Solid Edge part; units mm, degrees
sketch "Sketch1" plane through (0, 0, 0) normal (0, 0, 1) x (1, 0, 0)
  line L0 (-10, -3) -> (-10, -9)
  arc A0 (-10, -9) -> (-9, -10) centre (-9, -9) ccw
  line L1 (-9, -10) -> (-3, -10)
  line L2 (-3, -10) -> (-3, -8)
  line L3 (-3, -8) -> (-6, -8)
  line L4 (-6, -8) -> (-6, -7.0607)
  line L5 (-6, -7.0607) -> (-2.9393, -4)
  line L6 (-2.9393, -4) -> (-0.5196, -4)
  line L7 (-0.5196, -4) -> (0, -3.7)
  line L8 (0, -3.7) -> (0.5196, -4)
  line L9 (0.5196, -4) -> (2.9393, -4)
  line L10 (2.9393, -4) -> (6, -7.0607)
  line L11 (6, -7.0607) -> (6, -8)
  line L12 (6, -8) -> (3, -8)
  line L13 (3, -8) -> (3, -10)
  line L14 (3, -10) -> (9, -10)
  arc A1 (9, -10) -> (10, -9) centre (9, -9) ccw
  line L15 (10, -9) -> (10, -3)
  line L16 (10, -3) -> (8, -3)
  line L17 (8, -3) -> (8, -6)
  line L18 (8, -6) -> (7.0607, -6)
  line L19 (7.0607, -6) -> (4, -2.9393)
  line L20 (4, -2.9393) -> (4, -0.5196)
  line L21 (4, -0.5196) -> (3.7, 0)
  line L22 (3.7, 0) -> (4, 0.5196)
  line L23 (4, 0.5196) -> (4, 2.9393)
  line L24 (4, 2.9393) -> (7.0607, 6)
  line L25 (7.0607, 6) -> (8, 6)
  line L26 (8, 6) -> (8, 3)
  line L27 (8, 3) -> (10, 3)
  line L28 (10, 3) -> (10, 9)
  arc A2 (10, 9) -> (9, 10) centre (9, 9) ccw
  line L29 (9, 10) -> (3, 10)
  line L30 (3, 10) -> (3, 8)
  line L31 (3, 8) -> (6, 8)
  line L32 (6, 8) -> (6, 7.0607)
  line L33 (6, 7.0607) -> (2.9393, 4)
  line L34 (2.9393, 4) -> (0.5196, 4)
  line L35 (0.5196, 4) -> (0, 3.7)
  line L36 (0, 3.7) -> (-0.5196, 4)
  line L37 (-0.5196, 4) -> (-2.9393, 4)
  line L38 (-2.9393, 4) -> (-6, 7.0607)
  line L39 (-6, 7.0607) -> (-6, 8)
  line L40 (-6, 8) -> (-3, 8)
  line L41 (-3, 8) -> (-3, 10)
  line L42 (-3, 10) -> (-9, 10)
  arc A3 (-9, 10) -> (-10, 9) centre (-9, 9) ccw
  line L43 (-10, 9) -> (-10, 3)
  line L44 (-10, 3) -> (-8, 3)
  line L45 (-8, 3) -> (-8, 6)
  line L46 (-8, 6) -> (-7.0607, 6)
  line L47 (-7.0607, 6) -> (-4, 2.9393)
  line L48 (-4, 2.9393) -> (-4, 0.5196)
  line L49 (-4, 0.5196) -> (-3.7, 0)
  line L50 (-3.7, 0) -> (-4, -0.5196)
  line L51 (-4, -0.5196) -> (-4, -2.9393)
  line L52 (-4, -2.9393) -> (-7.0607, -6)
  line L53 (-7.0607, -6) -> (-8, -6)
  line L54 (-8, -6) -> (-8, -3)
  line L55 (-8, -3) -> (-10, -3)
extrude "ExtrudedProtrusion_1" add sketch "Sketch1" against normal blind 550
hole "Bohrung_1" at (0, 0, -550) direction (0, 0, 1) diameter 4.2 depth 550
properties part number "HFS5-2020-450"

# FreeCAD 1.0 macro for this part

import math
import FreeCAD as App
import Part
import Sketcher

V = App.Vector
Q = App.Units.Quantity

doc = App.newDocument("Part")
body = doc.addObject("PartDesign::Body", "Body")

# Sketch on XY plane
sketch1 = body.newObject("Sketcher::SketchObject", "Sketch")
sketch1.AttachmentSupport = (doc.getObject("XY_Plane"), [""])
sketch1.MapMode = "FlatFace"
sketch1.addGeometry([
    Part.LineSegment(V(-8, -3, 0), V(-10, -3, 0)),  # 0
    Part.LineSegment(V(-10, -3, 0), V(-10, -9, 0)),  # 1
    Part.ArcOfCircle(Part.Circle(V(-9, -9, 0), V(0, 0, 1), 1), math.radians(180), math.radians(270)),  # 2
    Part.LineSegment(V(-9, -10, 0), V(-3, -10, 0)),  # 3
    Part.LineSegment(V(-3, -10, 0), V(-3, -8, 0)),  # 4
    Part.LineSegment(V(-3, -8, 0), V(-6, -8, 0)),  # 5
    Part.LineSegment(V(-6, -8, 0), V(-6, -7.1, 0)),  # 6
    Part.LineSegment(V(-6, -7.1, 0), V(-2.9, -4, 0)),  # 7
    Part.LineSegment(V(-2.9, -4, 0), V(-0.5, -4, 0)),  # 8
    Part.LineSegment(V(-0.5, -4, 0), V(0, -3.7, 0)),  # 9
    Part.LineSegment(V(0, -3.7, 0), V(0.5, -4, 0)),  # 10
    Part.LineSegment(V(0.5, -4, 0), V(2.9, -4, 0)),  # 11
    Part.LineSegment(V(2.9, -4, 0), V(6, -7.1, 0)),  # 12
    Part.LineSegment(V(6, -7.1, 0), V(6, -8, 0)),  # 13
    Part.LineSegment(V(6, -8, 0), V(3, -8, 0)),  # 14
    Part.LineSegment(V(3, -8, 0), V(3, -10, 0)),  # 15
    Part.LineSegment(V(3, -10, 0), V(9, -10, 0)),  # 16
    Part.ArcOfCircle(Part.Circle(V(9, -9, 0), V(0, 0, 1), 1), math.radians(-90), math.radians(0)),  # 17
    Part.LineSegment(V(10, -9, 0), V(10, -3, 0)),  # 18
    Part.LineSegment(V(10, -3, 0), V(8, -3, 0)),  # 19
    Part.LineSegment(V(8, -3, 0), V(8, -6, 0)),  # 20
    Part.LineSegment(V(8, -6, 0), V(7.1, -6, 0)),  # 21
    Part.LineSegment(V(7.1, -6, 0), V(4, -2.9, 0)),  # 22
    Part.LineSegment(V(4, -2.9, 0), V(4, -0.5, 0)),  # 23
    Part.LineSegment(V(4, -0.5, 0), V(3.7, 0, 0)),  # 24
    Part.LineSegment(V(3.7, 0, 0), V(4, 0.5, 0)),  # 25
    Part.LineSegment(V(4, 0.5, 0), V(4, 2.9, 0)),  # 26
    Part.LineSegment(V(4, 2.9, 0), V(7.1, 6, 0)),  # 27
    Part.LineSegment(V(7.1, 6, 0), V(8, 6, 0)),  # 28
    Part.LineSegment(V(8, 6, 0), V(8, 3, 0)),  # 29
    Part.LineSegment(V(8, 3, 0), V(10, 3, 0)),  # 30
    Part.LineSegment(V(10, 3, 0), V(10, 9, 0)),  # 31
    Part.ArcOfCircle(Part.Circle(V(9, 9, 0), V(0, 0, 1), 1), math.radians(0), math.radians(90)),  # 32
    Part.LineSegment(V(9, 10, 0), V(3, 10, 0)),  # 33
    Part.LineSegment(V(3, 10, 0), V(3, 8, 0)),  # 34
    Part.LineSegment(V(3, 8, 0), V(6, 8, 0)),  # 35
    Part.LineSegment(V(6, 8, 0), V(6, 7.1, 0)),  # 36
    Part.LineSegment(V(6, 7.1, 0), V(2.9, 4, 0)),  # 37
    Part.LineSegment(V(2.9, 4, 0), V(0.5, 4, 0)),  # 38
    Part.LineSegment(V(0.5, 4, 0), V(0, 3.7, 0)),  # 39
    Part.LineSegment(V(0, 3.7, 0), V(-0.5, 4, 0)),  # 40
    Part.LineSegment(V(-0.5, 4, 0), V(-2.9, 4, 0)),  # 41
    Part.LineSegment(V(-2.9, 4, 0), V(-6, 7.1, 0)),  # 42
    Part.LineSegment(V(-6, 7.1, 0), V(-6, 8, 0)),  # 43
    Part.LineSegment(V(-6, 8, 0), V(-3, 8, 0)),  # 44
    Part.LineSegment(V(-3, 8, 0), V(-3, 10, 0)),  # 45
    Part.LineSegment(V(-3, 10, 0), V(-9, 10, 0)),  # 46
    Part.ArcOfCircle(Part.Circle(V(-9, 9, 0), V(0, 0, 1), 1), math.radians(90), math.radians(180)),  # 47
    Part.LineSegment(V(-10, 9, 0), V(-10, 3, 0)),  # 48
    Part.LineSegment(V(-10, 3, 0), V(-8, 3, 0)),  # 49
    Part.LineSegment(V(-8, 3, 0), V(-8, 6, 0)),  # 50
    Part.LineSegment(V(-8, 6, 0), V(-7.1, 6, 0)),  # 51
    Part.LineSegment(V(-7.1, 6, 0), V(-4, 2.9, 0)),  # 52
    Part.LineSegment(V(-4, 2.9, 0), V(-4, 0.5, 0)),  # 53
    Part.LineSegment(V(-4, 0.5, 0), V(-3.7, 0, 0)),  # 54
    Part.LineSegment(V(-3.7, 0, 0), V(-4, -0.5, 0)),  # 55
    Part.LineSegment(V(-4, -0.5, 0), V(-4, -2.9, 0)),  # 56
    Part.LineSegment(V(-4, -2.9, 0), V(-7.1, -6, 0)),  # 57
    Part.LineSegment(V(-7.1, -6, 0), V(-8, -6, 0)),  # 58
    Part.LineSegment(V(-8, -6, 0), V(-8, -3, 0)),  # 59
], False)
sketch1.addConstraint([
    Sketcher.Constraint("Coincident", 0, 2, 1, 1),
    Sketcher.Constraint("Tangent", 1, 2, 2, 1),
    Sketcher.Constraint("Tangent", 2, 2, 3, 1),
    Sketcher.Constraint("Coincident", 3, 2, 4, 1),
    Sketcher.Constraint("Coincident", 4, 2, 5, 1),
    Sketcher.Constraint("Coincident", 5, 2, 6, 1),
    Sketcher.Constraint("Coincident", 6, 2, 7, 1),
    Sketcher.Constraint("Coincident", 7, 2, 8, 1),
    Sketcher.Constraint("Coincident", 8, 2, 9, 1),
    Sketcher.Constraint("Coincident", 9, 2, 10, 1),
    Sketcher.Constraint("Coincident", 10, 2, 11, 1),
    Sketcher.Constraint("Coincident", 11, 2, 12, 1),
    Sketcher.Constraint("Coincident", 12, 2, 13, 1),
    Sketcher.Constraint("Coincident", 13, 2, 14, 1),
    Sketcher.Constraint("Coincident", 14, 2, 15, 1),
    Sketcher.Constraint("Coincident", 15, 2, 16, 1),
    Sketcher.Constraint("Tangent", 16, 2, 17, 1),
    Sketcher.Constraint("Tangent", 17, 2, 18, 1),
    Sketcher.Constraint("Coincident", 18, 2, 19, 1),
    Sketcher.Constraint("Coincident", 19, 2, 20, 1),
    Sketcher.Constraint("Coincident", 20, 2, 21, 1),
    Sketcher.Constraint("Coincident", 21, 2, 22, 1),
    Sketcher.Constraint("Coincident", 22, 2, 23, 1),
    Sketcher.Constraint("Coincident", 23, 2, 24, 1),
    Sketcher.Constraint("Coincident", 24, 2, 25, 1),
    Sketcher.Constraint("Coincident", 25, 2, 26, 1),
    Sketcher.Constraint("Coincident", 26, 2, 27, 1),
    Sketcher.Constraint("Coincident", 27, 2, 28, 1),
    Sketcher.Constraint("Coincident", 28, 2, 29, 1),
    Sketcher.Constraint("Coincident", 29, 2, 30, 1),
    Sketcher.Constraint("Coincident", 30, 2, 31, 1),
    Sketcher.Constraint("Tangent", 31, 2, 32, 1),
    Sketcher.Constraint("Tangent", 32, 2, 33, 1),
    Sketcher.Constraint("Coincident", 33, 2, 34, 1),
    Sketcher.Constraint("Coincident", 34, 2, 35, 1),
    Sketcher.Constraint("Coincident", 35, 2, 36, 1),
    Sketcher.Constraint("Coincident", 36, 2, 37, 1),
    Sketcher.Constraint("Coincident", 37, 2, 38, 1),
    Sketcher.Constraint("Coincident", 38, 2, 39, 1),
    Sketcher.Constraint("Coincident", 39, 2, 40, 1),
    Sketcher.Constraint("Coincident", 40, 2, 41, 1),
    Sketcher.Constraint("Coincident", 41, 2, 42, 1),
    Sketcher.Constraint("Coincident", 42, 2, 43, 1),
    Sketcher.Constraint("Coincident", 43, 2, 44, 1),
    Sketcher.Constraint("Coincident", 44, 2, 45, 1),
    Sketcher.Constraint("Coincident", 45, 2, 46, 1),
    Sketcher.Constraint("Tangent", 46, 2, 47, 1),
    Sketcher.Constraint("Tangent", 47, 2, 48, 1),
    Sketcher.Constraint("Coincident", 48, 2, 49, 1),
    Sketcher.Constraint("Coincident", 49, 2, 50, 1),
    Sketcher.Constraint("Coincident", 50, 2, 51, 1),
    Sketcher.Constraint("Coincident", 51, 2, 52, 1),
    Sketcher.Constraint("Coincident", 52, 2, 53, 1),
    Sketcher.Constraint("Coincident", 53, 2, 54, 1),
    Sketcher.Constraint("Coincident", 54, 2, 55, 1),
    Sketcher.Constraint("Coincident", 55, 2, 56, 1),
    Sketcher.Constraint("Coincident", 56, 2, 57, 1),
    Sketcher.Constraint("Coincident", 57, 2, 58, 1),
    Sketcher.Constraint("Coincident", 58, 2, 59, 1),
    Sketcher.Constraint("Coincident", 59, 2, 0, 1),
    Sketcher.Constraint("Horizontal", 0),
    Sketcher.Constraint("Vertical", 1),
    Sketcher.Constraint("Horizontal", 3),
    Sketcher.Constraint("Vertical", 4),
    Sketcher.Constraint("Horizontal", 5),
    Sketcher.Constraint("Vertical", 6),
    Sketcher.Constraint("Horizontal", 8),
    Sketcher.Constraint("Horizontal", 11),
    Sketcher.Constraint("Vertical", 13),
    Sketcher.Constraint("Horizontal", 14),
    Sketcher.Constraint("Vertical", 15),
    Sketcher.Constraint("Horizontal", 16),
    Sketcher.Constraint("Vertical", 18),
    Sketcher.Constraint("Horizontal", 19),
    Sketcher.Constraint("Vertical", 20),
    Sketcher.Constraint("Horizontal", 21),
    Sketcher.Constraint("Vertical", 23),
    Sketcher.Constraint("Vertical", 26),
    Sketcher.Constraint("Horizontal", 28),
    Sketcher.Constraint("Vertical", 29),
    Sketcher.Constraint("Horizontal", 30),
    Sketcher.Constraint("Vertical", 31),
    Sketcher.Constraint("Horizontal", 33),
    Sketcher.Constraint("Vertical", 34),
    Sketcher.Constraint("Horizontal", 35),
    Sketcher.Constraint("Vertical", 36),
    Sketcher.Constraint("Horizontal", 38),
    Sketcher.Constraint("Horizontal", 41),
    Sketcher.Constraint("Vertical", 43),
    Sketcher.Constraint("Horizontal", 44),
    Sketcher.Constraint("Vertical", 45),
    Sketcher.Constraint("Horizontal", 46),
    Sketcher.Constraint("Vertical", 48),
    Sketcher.Constraint("Horizontal", 49),
    Sketcher.Constraint("Vertical", 50),
    Sketcher.Constraint("Horizontal", 51),
    Sketcher.Constraint("Vertical", 53),
    Sketcher.Constraint("Vertical", 56),
    Sketcher.Constraint("Horizontal", 58),
    Sketcher.Constraint("Vertical", 59),
    Sketcher.Constraint("Equal", 2, 17),
    Sketcher.Constraint("Equal", 17, 32),
    Sketcher.Constraint("Equal", 32, 47),
    Sketcher.Constraint("Symmetric", 2, 3, 32, 3, -1, 1),
    Sketcher.Constraint("Symmetric", 17, 3, 47, 3, -1, 1),
    Sketcher.Constraint("Symmetric", 4, 2, 34, 2, -1, 1),
    Sketcher.Constraint("Symmetric", 6, 2, 36, 2, -1, 1),
    Sketcher.Constraint("Symmetric", 7, 2, 37, 2, -1, 1),
    Sketcher.Constraint("Symmetric", 9, 2, 39, 2, -1, 1),
    Sketcher.Constraint("Symmetric", 10, 2, 40, 2, -1, 1),
    Sketcher.Constraint("Symmetric", 12, 2, 42, 2, -1, 1),
    Sketcher.Constraint("Symmetric", 14, 2, 44, 2, -1, 1),
    Sketcher.Constraint("Symmetric", 19, 2, 49, 2, -1, 1),
    Sketcher.Constraint("Symmetric", 21, 2, 51, 2, -1, 1),
    Sketcher.Constraint("Symmetric", 22, 2, 52, 2, -1, 1),
    Sketcher.Constraint("Symmetric", 24, 2, 54, 2, -1, 1),
    Sketcher.Constraint("Symmetric", 25, 2, 55, 2, -1, 1),
    Sketcher.Constraint("Symmetric", 27, 2, 57, 2, -1, 1),
    Sketcher.Constraint("Symmetric", 29, 2, 59, 2, -1, 1),
    Sketcher.Constraint("Symmetric", 2, 3, 17, 3, -2),
    Sketcher.Constraint("Symmetric", 8, 2, 10, 2, -2),
    Sketcher.Constraint("Symmetric", 6, 2, 12, 2, -2),
    Sketcher.Constraint("Symmetric", 4, 2, 14, 2, -2),
    Sketcher.Constraint("Symmetric", 29, 2, 49, 2, -2),
    Sketcher.Constraint("Symmetric", 27, 2, 51, 2, -2),
    Sketcher.Constraint("Symmetric", 26, 2, 52, 2, -2),
    Sketcher.Constraint("PointOnObject", 9, 2, -2),
    Sketcher.Constraint("PointOnObject", 24, 2, -1),
    Sketcher.Constraint("Perpendicular", 7, 12),
    Sketcher.Constraint("Parallel", 12, 22),
    Sketcher.Constraint("Perpendicular", 9, 24),
    Sketcher.Constraint("Perpendicular", 10, 25),
    Sketcher.Constraint("Perpendicular", 22, 27),
    Sketcher.Constraint("Perpendicular", 24, 39),
    Sketcher.Constraint("Perpendicular", 37, 42),
    Sketcher.Constraint("Perpendicular", 39, 54),
    Sketcher.Constraint("Perpendicular", 52, 57),
    Sketcher.Constraint("Equal", 46, 1),
    Sketcher.Constraint("Equal", 49, 4),
    Sketcher.Constraint("Equal", 58, 6),
    Sketcher.Constraint("Equal", 44, 20),
    Sketcher.Constraint("Equal", 41, 23),
    Sketcher.Constraint("Equal", 12, 22),
    Sketcher.Constraint("Equal", 10, 24),
    Sketcher.Constraint("Radius", 2, 1.0),
    Sketcher.Constraint("DistanceX", 0, 2, 0, 1, 2.0),
    Sketcher.Constraint("DistanceX", 3, 1, 3, 2, 6.0),
    Sketcher.Constraint("DistanceX", 5, 2, 5, 1, 3.0),
    Sketcher.Constraint("Angle", 9, Q("30.0007 deg")),
    Sketcher.Constraint("DistanceX", 2, 3, -1, 1, 9.0),
    Sketcher.Constraint("DistanceY", 7, 2, -1, 1, 4.0),
    Sketcher.Constraint("Distance", 9, 0.6),
    Sketcher.Constraint("DistanceX", 8, 1, 8, 2, 2.4197),
])
pad1 = body.newObject("PartDesign::Pad", "Pad")
pad1.Profile = sketch1
pad1.Length = 550
pad1.Reversed = True

# Sketch on XY plane
sketch2 = body.newObject("Sketcher::SketchObject", "Sketch001")
sketch2.AttachmentSupport = (doc.getObject("XY_Plane"), [""])
sketch2.MapMode = "FlatFace"
sketch2.AttachmentOffset = App.Placement(V(0, 0, -550), App.Rotation())
sketch2.addGeometry(Part.Circle(V(0, 0, 0), V(0, 0, 1), 2.1), False)
sketch2.addConstraint([
    Sketcher.Constraint("Coincident", 0, 3, -1, 1),
    Sketcher.Constraint("Diameter", 0, 4.2),
])
doc.recompute()
hole = body.newObject("PartDesign::Hole", "Hole")
hole.Profile = sketch2
hole.ThreadType = "None"
hole.Diameter = 4.2
hole.DepthType = "Dimension"
hole.Depth = 550
hole.DrillPoint = "Flat"
hole.Reversed = True

doc.recompute()
